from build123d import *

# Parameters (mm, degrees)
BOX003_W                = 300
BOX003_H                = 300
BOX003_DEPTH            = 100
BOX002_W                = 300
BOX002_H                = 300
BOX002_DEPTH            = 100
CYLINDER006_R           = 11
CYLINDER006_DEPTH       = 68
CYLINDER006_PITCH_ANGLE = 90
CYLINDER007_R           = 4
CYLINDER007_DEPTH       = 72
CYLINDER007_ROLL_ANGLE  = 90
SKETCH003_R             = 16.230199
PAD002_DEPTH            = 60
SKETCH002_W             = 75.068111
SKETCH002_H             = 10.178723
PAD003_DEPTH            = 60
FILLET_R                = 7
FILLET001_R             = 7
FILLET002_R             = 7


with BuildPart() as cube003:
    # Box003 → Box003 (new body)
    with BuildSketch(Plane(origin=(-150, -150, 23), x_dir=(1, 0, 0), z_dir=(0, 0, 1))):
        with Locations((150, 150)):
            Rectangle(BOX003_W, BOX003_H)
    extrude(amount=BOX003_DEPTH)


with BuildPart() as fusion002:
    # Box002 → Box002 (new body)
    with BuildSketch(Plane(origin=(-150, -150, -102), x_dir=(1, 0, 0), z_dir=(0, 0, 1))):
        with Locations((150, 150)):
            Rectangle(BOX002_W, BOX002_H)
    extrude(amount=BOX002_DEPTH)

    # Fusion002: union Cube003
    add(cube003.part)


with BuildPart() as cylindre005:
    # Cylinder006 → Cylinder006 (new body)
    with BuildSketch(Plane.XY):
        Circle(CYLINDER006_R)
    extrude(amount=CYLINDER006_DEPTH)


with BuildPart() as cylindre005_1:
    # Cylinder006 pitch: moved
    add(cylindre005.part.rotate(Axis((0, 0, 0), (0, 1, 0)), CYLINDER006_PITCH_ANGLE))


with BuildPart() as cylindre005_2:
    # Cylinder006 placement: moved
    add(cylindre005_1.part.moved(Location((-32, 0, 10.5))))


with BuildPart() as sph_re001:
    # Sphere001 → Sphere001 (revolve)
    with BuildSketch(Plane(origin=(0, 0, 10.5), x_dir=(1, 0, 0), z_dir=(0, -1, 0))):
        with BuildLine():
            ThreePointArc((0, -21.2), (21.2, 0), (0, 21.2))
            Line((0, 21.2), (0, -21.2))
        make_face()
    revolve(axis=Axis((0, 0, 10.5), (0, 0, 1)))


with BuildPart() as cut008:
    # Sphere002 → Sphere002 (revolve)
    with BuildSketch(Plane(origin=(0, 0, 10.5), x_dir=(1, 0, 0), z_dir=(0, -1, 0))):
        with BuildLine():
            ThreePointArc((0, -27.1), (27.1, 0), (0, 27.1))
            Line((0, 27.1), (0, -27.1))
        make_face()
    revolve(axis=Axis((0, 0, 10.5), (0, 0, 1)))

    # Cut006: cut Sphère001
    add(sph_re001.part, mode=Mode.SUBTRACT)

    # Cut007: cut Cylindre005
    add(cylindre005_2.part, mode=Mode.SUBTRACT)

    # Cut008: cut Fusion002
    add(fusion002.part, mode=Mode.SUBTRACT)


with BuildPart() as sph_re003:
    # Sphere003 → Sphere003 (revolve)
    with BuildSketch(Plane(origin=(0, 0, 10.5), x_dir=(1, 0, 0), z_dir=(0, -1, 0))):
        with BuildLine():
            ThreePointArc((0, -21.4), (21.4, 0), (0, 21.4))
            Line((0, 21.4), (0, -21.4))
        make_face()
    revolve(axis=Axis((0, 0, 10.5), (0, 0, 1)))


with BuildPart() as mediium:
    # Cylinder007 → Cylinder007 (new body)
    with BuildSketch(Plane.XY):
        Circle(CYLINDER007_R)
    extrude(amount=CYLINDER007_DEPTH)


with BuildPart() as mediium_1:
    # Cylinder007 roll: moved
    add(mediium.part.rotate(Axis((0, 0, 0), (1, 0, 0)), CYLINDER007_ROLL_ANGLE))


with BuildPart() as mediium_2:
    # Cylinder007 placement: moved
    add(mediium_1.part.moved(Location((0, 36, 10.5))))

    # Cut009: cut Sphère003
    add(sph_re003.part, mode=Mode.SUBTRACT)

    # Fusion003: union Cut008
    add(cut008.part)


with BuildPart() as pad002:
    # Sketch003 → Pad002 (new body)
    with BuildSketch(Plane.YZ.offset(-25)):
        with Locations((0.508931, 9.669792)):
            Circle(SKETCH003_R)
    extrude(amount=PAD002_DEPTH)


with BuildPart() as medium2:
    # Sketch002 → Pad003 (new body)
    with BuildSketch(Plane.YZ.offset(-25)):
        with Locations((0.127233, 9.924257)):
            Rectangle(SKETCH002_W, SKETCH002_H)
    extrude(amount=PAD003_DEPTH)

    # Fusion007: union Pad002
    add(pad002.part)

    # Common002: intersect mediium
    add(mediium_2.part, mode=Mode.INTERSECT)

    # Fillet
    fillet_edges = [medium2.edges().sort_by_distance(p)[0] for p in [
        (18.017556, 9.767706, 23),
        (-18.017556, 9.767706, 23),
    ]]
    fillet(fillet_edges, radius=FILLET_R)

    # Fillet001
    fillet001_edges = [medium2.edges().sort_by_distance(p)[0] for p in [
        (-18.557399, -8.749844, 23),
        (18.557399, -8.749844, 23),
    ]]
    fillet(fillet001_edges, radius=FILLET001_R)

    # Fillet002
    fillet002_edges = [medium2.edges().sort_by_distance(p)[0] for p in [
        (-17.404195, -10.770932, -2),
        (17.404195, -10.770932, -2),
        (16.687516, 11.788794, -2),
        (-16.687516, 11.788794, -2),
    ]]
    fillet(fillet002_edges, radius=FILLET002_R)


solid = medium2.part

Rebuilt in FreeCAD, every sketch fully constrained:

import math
import FreeCAD as App
import Part
import Sketcher

V = App.Vector


def edges_at(feature, points):
    """Names of the edges that pass closest to the given points."""
    edges = feature.Shape.Edges
    near = lambda p: min(range(len(edges)), key=lambda i: edges[i].distToShape(Part.Vertex(*p))[0])
    return sorted({f"Edge{near(p) + 1}" for p in points})

doc = App.newDocument("Part")
body = doc.addObject("PartDesign::Body", "Body")

# Sketch on XY plane
sketch1 = body.newObject("Sketcher::SketchObject", "Sketch")
sketch1.AttachmentSupport = (doc.getObject("XY_Plane"), [""])
sketch1.MapMode = "FlatFace"
sketch1.AttachmentOffset = App.Placement(V(0, 0, 23), App.Rotation())
sketch1.addGeometry(Part.LineSegment(V(-150, 150, 0), V(-150, -150, 0)), False)
sketch1.addGeometry(Part.LineSegment(V(-150, -150, 0), V(150, -150, 0)), False)
sketch1.addGeometry(Part.LineSegment(V(150, -150, 0), V(150, 150, 0)), False)
sketch1.addGeometry(Part.LineSegment(V(150, 150, 0), V(-150, 150, 0)), False)
sketch1.addConstraint(Sketcher.Constraint("Coincident", 0, 2, 1, 1))
sketch1.addConstraint(Sketcher.Constraint("Coincident", 1, 2, 2, 1))
sketch1.addConstraint(Sketcher.Constraint("Coincident", 2, 2, 3, 1))
sketch1.addConstraint(Sketcher.Constraint("Coincident", 3, 2, 0, 1))
sketch1.addConstraint(Sketcher.Constraint("Vertical", 0))
sketch1.addConstraint(Sketcher.Constraint("Horizontal", 1))
sketch1.addConstraint(Sketcher.Constraint("Vertical", 2))
sketch1.addConstraint(Sketcher.Constraint("Horizontal", 3))
sketch1.addConstraint(Sketcher.Constraint("Symmetric", 0, 2, 2, 2, -1, 1))
sketch1.addConstraint(Sketcher.Constraint("Equal", 3, 0))
sketch1.addConstraint(Sketcher.Constraint("DistanceX", 1, 1, 1, 2, 300.0))
pad1 = body.newObject("PartDesign::Pad", "Pad")
pad1.Profile = sketch1
pad1.Length = 100
body2 = doc.addObject("PartDesign::Body", "Body001")
body2.AllowCompound = True

# Sketch on XY plane
sketch2 = body2.newObject("Sketcher::SketchObject", "Sketch001")
sketch2.AttachmentSupport = (doc.getObject("XY_Plane001"), [""])
sketch2.MapMode = "FlatFace"
sketch2.AttachmentOffset = App.Placement(V(0, 0, -102), App.Rotation())
sketch2.addGeometry(Part.LineSegment(V(-150, 150, 0), V(-150, -150, 0)), False)
sketch2.addGeometry(Part.LineSegment(V(-150, -150, 0), V(150, -150, 0)), False)
sketch2.addGeometry(Part.LineSegment(V(150, -150, 0), V(150, 150, 0)), False)
sketch2.addGeometry(Part.LineSegment(V(150, 150, 0), V(-150, 150, 0)), False)
sketch2.addConstraint(Sketcher.Constraint("Coincident", 0, 2, 1, 1))
sketch2.addConstraint(Sketcher.Constraint("Coincident", 1, 2, 2, 1))
sketch2.addConstraint(Sketcher.Constraint("Coincident", 2, 2, 3, 1))
sketch2.addConstraint(Sketcher.Constraint("Coincident", 3, 2, 0, 1))
sketch2.addConstraint(Sketcher.Constraint("Vertical", 0))
sketch2.addConstraint(Sketcher.Constraint("Horizontal", 1))
sketch2.addConstraint(Sketcher.Constraint("Vertical", 2))
sketch2.addConstraint(Sketcher.Constraint("Horizontal", 3))
sketch2.addConstraint(Sketcher.Constraint("Symmetric", 0, 2, 2, 2, -1, 1))
sketch2.addConstraint(Sketcher.Constraint("Equal", 3, 0))
sketch2.addConstraint(Sketcher.Constraint("DistanceX", 1, 1, 1, 2, 300.0))
pad2 = body2.newObject("PartDesign::Pad", "Pad001")
pad2.Profile = sketch2
pad2.Length = 100
doc.recompute()

boolean = body2.newObject("PartDesign::Boolean", "Boolean")
boolean.Type = "Fuse"
boolean.addObjects([body])
body3 = doc.addObject("PartDesign::Body", "Body002")

# Sketch on XY plane
sketch3 = body3.newObject("Sketcher::SketchObject", "Sketch002")
sketch3.AttachmentSupport = (doc.getObject("XY_Plane002"), [""])
sketch3.MapMode = "FlatFace"
sketch3.addGeometry(Part.Circle(V(0, 0, 0), V(0, 0, 1), 11), False)
sketch3.addConstraint(Sketcher.Constraint("Coincident", 0, 3, -1, 1))
sketch3.addConstraint(Sketcher.Constraint("Diameter", 0, 22.0))
pad3 = body3.newObject("PartDesign::Pad", "Pad002")
pad3.Profile = sketch3
pad3.Length = 68
body4 = doc.addObject("PartDesign::Body", "Body003")
doc.recompute()

body3.Placement = App.Placement(V(0, 0, 0), App.Rotation(V(0, 1, 0), 90))
boolean2 = body4.newObject("PartDesign::Boolean", "Boolean001")
boolean2.Type = "Fuse"
boolean2.addObjects([body3])
body5 = doc.addObject("PartDesign::Body", "Body004")
doc.recompute()

body4.Placement = App.Placement(V(-32, 0, 10.5), App.Rotation(V(0, 0, 1), 0))
boolean3 = body5.newObject("PartDesign::Boolean", "Boolean002")
boolean3.Type = "Fuse"
boolean3.addObjects([body4])
body6 = doc.addObject("PartDesign::Body", "Body005")

# Sketch on XZ plane
sketch4 = body6.newObject("Sketcher::SketchObject", "Sketch003")
sketch4.AttachmentSupport = (doc.getObject("XZ_Plane005"), [""])
sketch4.MapMode = "FlatFace"
sketch4.addGeometry(Part.ArcOfCircle(Part.Circle(V(0, 10, 0), V(0, 0, 1), 21), math.radians(-90), math.radians(90)), False)
sketch4.addGeometry(Part.LineSegment(V(0, 32, 0), V(0, -11, 0)), False)
sketch4.addConstraint(Sketcher.Constraint("Coincident", 0, 1, 1, 2))
sketch4.addConstraint(Sketcher.Constraint("Coincident", 1, 1, 0, 2))
sketch4.addConstraint(Sketcher.Constraint("Vertical", 1))
sketch4.addConstraint(Sketcher.Constraint("PointOnObject", 0, 3, -2))
sketch4.addConstraint(Sketcher.Constraint("PointOnObject", 0, 1, -2))
sketch4.addConstraint(Sketcher.Constraint("Radius", 0, 21.2))
sketch4.addConstraint(Sketcher.Constraint("DistanceY", -1, 1, 0, 3, 10.5))
revolution = body6.newObject("PartDesign::Revolution", "Revolution")
revolution.Profile = sketch4
revolution.ReferenceAxis = (sketch4, ["V_Axis"])
revolution.Angle = 360
body7 = doc.addObject("PartDesign::Body", "Body006")

# Sketch on XZ plane
sketch5 = body7.newObject("Sketcher::SketchObject", "Sketch004")
sketch5.AttachmentSupport = (doc.getObject("XZ_Plane006"), [""])
sketch5.MapMode = "FlatFace"
sketch5.addGeometry(Part.ArcOfCircle(Part.Circle(V(0, 10, 0), V(0, 0, 1), 27), math.radians(-90), math.radians(90)), False)
sketch5.addGeometry(Part.LineSegment(V(0, 38, 0), V(0, -17, 0)), False)
sketch5.addConstraint(Sketcher.Constraint("Coincident", 0, 1, 1, 2))
sketch5.addConstraint(Sketcher.Constraint("Coincident", 1, 1, 0, 2))
sketch5.addConstraint(Sketcher.Constraint("Vertical", 1))
sketch5.addConstraint(Sketcher.Constraint("PointOnObject", 0, 3, -2))
sketch5.addConstraint(Sketcher.Constraint("PointOnObject", 0, 1, -2))
sketch5.addConstraint(Sketcher.Constraint("Radius", 0, 27.1))
sketch5.addConstraint(Sketcher.Constraint("DistanceY", -1, 1, 0, 3, 10.5))
revolution2 = body7.newObject("PartDesign::Revolution", "Revolution001")
revolution2.Profile = sketch5
revolution2.ReferenceAxis = (sketch5, ["V_Axis"])
revolution2.Angle = 360
doc.recompute()

boolean4 = body7.newObject("PartDesign::Boolean", "Boolean003")
boolean4.Type = "Cut"
boolean4.addObjects([body6])
doc.recompute()

boolean5 = body7.newObject("PartDesign::Boolean", "Boolean004")
boolean5.Type = "Cut"
boolean5.addObjects([body5])
doc.recompute()

boolean6 = body7.newObject("PartDesign::Boolean", "Boolean005")
boolean6.Type = "Cut"
boolean6.addObjects([body2])
body8 = doc.addObject("PartDesign::Body", "Body007")

# Sketch on XZ plane
sketch6 = body8.newObject("Sketcher::SketchObject", "Sketch005")
sketch6.AttachmentSupport = (doc.getObject("XZ_Plane007"), [""])
sketch6.MapMode = "FlatFace"
sketch6.addGeometry(Part.ArcOfCircle(Part.Circle(V(0, 10, 0), V(0, 0, 1), 21), math.radians(-90), math.radians(90)), False)
sketch6.addGeometry(Part.LineSegment(V(0, 32, 0), V(0, -11, 0)), False)
sketch6.addConstraint(Sketcher.Constraint("Coincident", 0, 1, 1, 2))
sketch6.addConstraint(Sketcher.Constraint("Coincident", 1, 1, 0, 2))
sketch6.addConstraint(Sketcher.Constraint("Vertical", 1))
sketch6.addConstraint(Sketcher.Constraint("PointOnObject", 0, 3, -2))
sketch6.addConstraint(Sketcher.Constraint("PointOnObject", 0, 1, -2))
sketch6.addConstraint(Sketcher.Constraint("Radius", 0, 21.4))
sketch6.addConstraint(Sketcher.Constraint("DistanceY", -1, 1, 0, 3, 10.5))
revolution3 = body8.newObject("PartDesign::Revolution", "Revolution002")
revolution3.Profile = sketch6
revolution3.ReferenceAxis = (sketch6, ["V_Axis"])
revolution3.Angle = 360
body9 = doc.addObject("PartDesign::Body", "Body008")

# Sketch on XY plane
sketch7 = body9.newObject("Sketcher::SketchObject", "Sketch006")
sketch7.AttachmentSupport = (doc.getObject("XY_Plane008"), [""])
sketch7.MapMode = "FlatFace"
sketch7.addGeometry(Part.Circle(V(0, 0, 0), V(0, 0, 1), 4), False)
sketch7.addConstraint(Sketcher.Constraint("Coincident", 0, 3, -1, 1))
sketch7.addConstraint(Sketcher.Constraint("Diameter", 0, 8.0))
pad4 = body9.newObject("PartDesign::Pad", "Pad003")
pad4.Profile = sketch7
pad4.Length = 72
body10 = doc.addObject("PartDesign::Body", "Body009")
doc.recompute()

body9.Placement = App.Placement(V(0, 0, 0), App.Rotation(V(1, 0, 0), 90))
boolean7 = body10.newObject("PartDesign::Boolean", "Boolean006")
boolean7.Type = "Fuse"
boolean7.addObjects([body9])
body11 = doc.addObject("PartDesign::Body", "Body010")
body11.AllowCompound = True
doc.recompute()

body10.Placement = App.Placement(V(0, 36, 10.5), App.Rotation(V(0, 0, 1), 0))
boolean8 = body11.newObject("PartDesign::Boolean", "Boolean007")
boolean8.Type = "Fuse"
boolean8.addObjects([body10])
doc.recompute()

boolean9 = body11.newObject("PartDesign::Boolean", "Boolean008")
boolean9.Type = "Cut"
boolean9.addObjects([body8])
doc.recompute()

boolean10 = body11.newObject("PartDesign::Boolean", "Boolean009")
boolean10.Type = "Fuse"
boolean10.addObjects([body7])
body12 = doc.addObject("PartDesign::Body", "Body011")

# Sketch on YZ plane
sketch8 = body12.newObject("Sketcher::SketchObject", "Sketch007")
sketch8.AttachmentSupport = (doc.getObject("YZ_Plane011"), [""])
sketch8.MapMode = "FlatFace"
sketch8.AttachmentOffset = App.Placement(V(0, 0, -25), App.Rotation())
sketch8.addGeometry(Part.Circle(V(1, 10, 0), V(0, 0, 1), 16), False)
sketch8.addConstraint(Sketcher.Constraint("Diameter", 0, 32.460398))
sketch8.addConstraint(Sketcher.Constraint("DistanceX", -1, 1, 0, 3, 0.508931))
sketch8.addConstraint(Sketcher.Constraint("DistanceY", -1, 1, 0, 3, 9.669792))
pad5 = body12.newObject("PartDesign::Pad", "Pad004")
pad5.Profile = sketch8
pad5.Length = 60
body13 = doc.addObject("PartDesign::Body", "Body012")

# Sketch on YZ plane
sketch9 = body13.newObject("Sketcher::SketchObject", "Sketch008")
sketch9.AttachmentSupport = (doc.getObject("YZ_Plane012"), [""])
sketch9.MapMode = "FlatFace"
sketch9.AttachmentOffset = App.Placement(V(0, 0, -25), App.Rotation())
sketch9.addGeometry(Part.LineSegment(V(-37, 15, 0), V(-37, 5, 0)), False)
sketch9.addGeometry(Part.LineSegment(V(-37, 5, 0), V(38, 5, 0)), False)
sketch9.addGeometry(Part.LineSegment(V(38, 5, 0), V(38, 15, 0)), False)
sketch9.addGeometry(Part.LineSegment(V(38, 15, 0), V(-37, 15, 0)), False)
sketch9.addConstraint(Sketcher.Constraint("Coincident", 0, 2, 1, 1))
sketch9.addConstraint(Sketcher.Constraint("Coincident", 1, 2, 2, 1))
sketch9.addConstraint(Sketcher.Constraint("Coincident", 2, 2, 3, 1))
sketch9.addConstraint(Sketcher.Constraint("Coincident", 3, 2, 0, 1))
sketch9.addConstraint(Sketcher.Constraint("Vertical", 0))
sketch9.addConstraint(Sketcher.Constraint("Horizontal", 1))
sketch9.addConstraint(Sketcher.Constraint("Vertical", 2))
sketch9.addConstraint(Sketcher.Constraint("Horizontal", 3))
sketch9.addConstraint(Sketcher.Constraint("DistanceX", 1, 1, 1, 2, 75.068111))
sketch9.addConstraint(Sketcher.Constraint("DistanceY", 0, 2, 0, 1, 10.178723))
sketch9.addConstraint(Sketcher.Constraint("DistanceX", -1, 1, 1, 2, 37.661288))
sketch9.addConstraint(Sketcher.Constraint("DistanceY", -1, 1, 2, 2, 15.013618))
pad6 = body13.newObject("PartDesign::Pad", "Pad005")
pad6.Profile = sketch9
pad6.Length = 60
doc.recompute()

boolean11 = body13.newObject("PartDesign::Boolean", "Boolean010")
boolean11.Type = "Fuse"
boolean11.addObjects([body12])
doc.recompute()

boolean12 = body13.newObject("PartDesign::Boolean", "Boolean011")
boolean12.Type = "Common"
boolean12.addObjects([body11])
doc.recompute()

fillet = body13.newObject("PartDesign::Fillet", "Fillet")
fillet.Base = (boolean12, edges_at(boolean12, [(18.018, 9.768, 23), (-18.018, 9.768, 23)]))
fillet.Radius = 7
doc.recompute()

fillet2 = body13.newObject("PartDesign::Fillet", "Fillet001")
fillet2.Base = (fillet, edges_at(fillet, [(-18.557, -8.75, 23), (18.557, -8.75, 23)]))
fillet2.Radius = 7
doc.recompute()

fillet3 = body13.newObject("PartDesign::Fillet", "Fillet002")
fillet3.Base = (fillet2, edges_at(fillet2, [
    (-17.404, -10.771, -2),
    (17.404, -10.771, -2),
    (16.688, 11.789, -2),
    (-16.688, 11.789, -2),
]))
fillet3.Radius = 7

doc.recompute()
